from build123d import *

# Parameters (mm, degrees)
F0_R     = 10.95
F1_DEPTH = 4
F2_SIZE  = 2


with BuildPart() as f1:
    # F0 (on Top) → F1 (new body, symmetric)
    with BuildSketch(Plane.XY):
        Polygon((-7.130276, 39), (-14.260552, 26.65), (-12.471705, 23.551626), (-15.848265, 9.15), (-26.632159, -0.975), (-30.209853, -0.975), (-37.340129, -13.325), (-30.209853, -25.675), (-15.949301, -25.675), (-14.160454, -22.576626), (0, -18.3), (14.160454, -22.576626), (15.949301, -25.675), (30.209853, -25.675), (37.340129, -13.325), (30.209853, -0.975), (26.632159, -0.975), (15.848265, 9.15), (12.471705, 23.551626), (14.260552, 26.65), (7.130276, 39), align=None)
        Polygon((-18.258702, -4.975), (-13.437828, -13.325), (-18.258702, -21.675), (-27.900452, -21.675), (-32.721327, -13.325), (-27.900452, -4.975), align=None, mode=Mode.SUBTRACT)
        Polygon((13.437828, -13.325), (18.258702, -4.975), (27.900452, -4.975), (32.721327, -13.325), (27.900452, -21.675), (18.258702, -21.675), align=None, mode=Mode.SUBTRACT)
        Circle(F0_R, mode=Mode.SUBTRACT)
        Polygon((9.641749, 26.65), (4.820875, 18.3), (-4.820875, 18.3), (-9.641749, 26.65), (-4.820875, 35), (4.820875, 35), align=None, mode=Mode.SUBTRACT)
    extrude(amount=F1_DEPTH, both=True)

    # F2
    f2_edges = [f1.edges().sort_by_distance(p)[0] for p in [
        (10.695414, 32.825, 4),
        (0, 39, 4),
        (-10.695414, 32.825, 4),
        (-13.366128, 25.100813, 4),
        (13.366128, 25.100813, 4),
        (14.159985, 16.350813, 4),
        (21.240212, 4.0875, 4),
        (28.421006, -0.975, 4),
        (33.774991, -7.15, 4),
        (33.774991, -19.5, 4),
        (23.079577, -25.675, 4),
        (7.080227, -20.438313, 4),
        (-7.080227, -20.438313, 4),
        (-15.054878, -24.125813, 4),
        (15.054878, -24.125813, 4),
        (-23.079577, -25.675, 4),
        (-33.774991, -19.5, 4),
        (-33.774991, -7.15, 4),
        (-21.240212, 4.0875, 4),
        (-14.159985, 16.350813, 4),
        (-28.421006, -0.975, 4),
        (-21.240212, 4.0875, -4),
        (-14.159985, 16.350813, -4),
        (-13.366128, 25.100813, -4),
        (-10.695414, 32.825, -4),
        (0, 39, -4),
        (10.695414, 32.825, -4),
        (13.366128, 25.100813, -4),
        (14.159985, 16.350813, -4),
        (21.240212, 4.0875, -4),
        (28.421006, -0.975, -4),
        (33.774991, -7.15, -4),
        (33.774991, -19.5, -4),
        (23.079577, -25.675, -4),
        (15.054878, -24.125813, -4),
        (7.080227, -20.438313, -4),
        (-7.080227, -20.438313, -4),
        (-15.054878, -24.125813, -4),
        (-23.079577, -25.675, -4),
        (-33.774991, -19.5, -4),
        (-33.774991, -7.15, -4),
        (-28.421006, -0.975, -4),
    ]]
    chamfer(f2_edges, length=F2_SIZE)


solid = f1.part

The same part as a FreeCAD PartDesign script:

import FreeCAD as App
import Part
import Sketcher

V = App.Vector
Q = App.Units.Quantity


def edges_at(feature, points):
    """Names of the edges that pass closest to the given points."""
    edges = feature.Shape.Edges
    near = lambda p: min(range(len(edges)), key=lambda i: edges[i].distToShape(Part.Vertex(*p))[0])
    return sorted({f"Edge{near(p) + 1}" for p in points})


def add_polygon(sketch, points):
    """Adds a closed chain of lines whose ends are joined by coincident constraints."""
    first, n = sketch.GeometryCount, len(points)
    for a, b in zip(points, points[1:] + points[:1]):
        sketch.addGeometry(Part.LineSegment(App.Vector(*a, 0), App.Vector(*b, 0)), False)
    for i in range(n):
        sketch.addConstraint(Sketcher.Constraint("Coincident", first + i, 2, first + (i + 1) % n, 1))

doc = App.newDocument("Part")
params = doc.addObject("Spreadsheet::Sheet", "Params")
for row, (alias, value) in enumerate([
    ("sketch1_diameter", "21.9 mm"),
    ("pad1_length", "8 mm"),
    ("chamfer_size", "2 mm"),
], start=1):
    params.set(f"A{row}", alias)
    params.set(f"B{row}", "=" + value)
    params.setAlias(f"B{row}", alias)

body = doc.addObject("PartDesign::Body", "Body")

# Sketch on XY plane
sketch1 = body.newObject("Sketcher::SketchObject", "Sketch")
sketch1.AttachmentSupport = (doc.getObject("XY_Plane"), [""])
sketch1.MapMode = "FlatFace"
add_polygon(sketch1, [(-7.130276, 39), (-14.260552, 26.65), (-12.471705, 23.551626), (-15.848265, 9.15), (-26.632159, -0.975), (-30.209853, -0.975), (-37.340129, -13.325), (-30.209853, -25.675), (-15.949301, -25.675), (-14.160454, -22.576626), (0, -18.3), (14.160454, -22.576626), (15.949301, -25.675), (30.209853, -25.675), (37.340129, -13.325), (30.209853, -0.975), (26.632159, -0.975), (15.848265, 9.15), (12.471705, 23.551626), (14.260552, 26.65), (7.130276, 39)])  # lines 0-20
add_polygon(sketch1, [(-27.900452, -4.975), (-18.258702, -4.975), (-13.437828, -13.325), (-18.258702, -21.675), (-27.900452, -21.675), (-32.721327, -13.325)])  # lines 21-26
add_polygon(sketch1, [(18.258702, -21.675), (13.437828, -13.325), (18.258702, -4.975), (27.900452, -4.975), (32.721327, -13.325), (27.900452, -21.675)])  # lines 27-32
sketch1.addGeometry(Part.Circle(V(0, 0, 0), V(0, 0, 1), 10.95), False)  # 33
add_polygon(sketch1, [(4.820875, 35), (9.641749, 26.65), (4.820875, 18.3), (-4.820875, 18.3), (-9.641749, 26.65), (-4.820875, 35)])  # lines 34-39
sketch1.addConstraint(Sketcher.Constraint("Horizontal", 4))
sketch1.addConstraint(Sketcher.Constraint("Horizontal", 7))
sketch1.addConstraint(Sketcher.Constraint("Horizontal", 12))
sketch1.addConstraint(Sketcher.Constraint("Horizontal", 15))
sketch1.addConstraint(Sketcher.Constraint("Horizontal", 20))
sketch1.addConstraint(Sketcher.Constraint("Horizontal", 21))
sketch1.addConstraint(Sketcher.Constraint("Horizontal", 24))
sketch1.addConstraint(Sketcher.Constraint("Horizontal", 29))
sketch1.addConstraint(Sketcher.Constraint("Horizontal", 32))
sketch1.addConstraint(Sketcher.Constraint("Horizontal", 36))
sketch1.addConstraint(Sketcher.Constraint("Horizontal", 39))
sketch1.addConstraint(Sketcher.Constraint("Coincident", 33, 3, -1, 1))
sketch1.addConstraint(Sketcher.Constraint("Symmetric", 8, 2, 10, 2, -2))
sketch1.addConstraint(Sketcher.Constraint("Symmetric", 7, 2, 11, 2, -2))
sketch1.addConstraint(Sketcher.Constraint("Symmetric", 5, 2, 13, 2, -2))
sketch1.addConstraint(Sketcher.Constraint("Symmetric", 4, 2, 14, 2, -2))
sketch1.addConstraint(Sketcher.Constraint("Symmetric", 2, 2, 16, 2, -2))
sketch1.addConstraint(Sketcher.Constraint("Symmetric", 1, 2, 17, 2, -2))
sketch1.addConstraint(Sketcher.Constraint("Symmetric", 0, 2, 18, 2, -2))
sketch1.addConstraint(Sketcher.Constraint("Symmetric", 22, 2, 27, 2, -2))
sketch1.addConstraint(Sketcher.Constraint("Symmetric", 21, 2, 28, 2, -2))
sketch1.addConstraint(Sketcher.Constraint("Symmetric", 25, 2, 30, 2, -2))
sketch1.addConstraint(Sketcher.Constraint("Symmetric", 24, 2, 31, 2, -2))
sketch1.addConstraint(Sketcher.Constraint("Symmetric", 34, 2, 37, 2, -2))
sketch1.addConstraint(Sketcher.Constraint("PointOnObject", 9, 2, -2))
sketch1.addConstraint(Sketcher.Constraint("Parallel", 0, 5))
sketch1.addConstraint(Sketcher.Constraint("Parallel", 1, 6))
sketch1.addConstraint(Sketcher.Constraint("Parallel", 5, 8))
sketch1.addConstraint(Sketcher.Constraint("Parallel", 6, 11))
sketch1.addConstraint(Sketcher.Constraint("Parallel", 8, 13))
sketch1.addConstraint(Sketcher.Constraint("Parallel", 14, 19))
sketch1.addConstraint(Sketcher.Constraint("Parallel", 19, 22))
sketch1.addConstraint(Sketcher.Constraint("Parallel", 18, 23))
sketch1.addConstraint(Sketcher.Constraint("Parallel", 22, 25))
sketch1.addConstraint(Sketcher.Constraint("Parallel", 23, 26))
sketch1.addConstraint(Sketcher.Constraint("Parallel", 25, 27))
sketch1.addConstraint(Sketcher.Constraint("Parallel", 27, 30))
sketch1.addConstraint(Sketcher.Constraint("Parallel", 30, 34))
sketch1.addConstraint(Sketcher.Constraint("Parallel", 31, 35))
sketch1.addConstraint(Sketcher.Constraint("Parallel", 34, 37))
sketch1.addConstraint(Sketcher.Constraint("Parallel", 35, 38))
sketch1.addConstraint(Sketcher.Constraint("Horizontal", 13, 2, 22, 2))
sketch1.addConstraint(Sketcher.Constraint("Horizontal", 22, 2, 25, 2))
sketch1.addConstraint(Sketcher.Constraint("Horizontal", 18, 2, 34, 2))
sketch1.addConstraint(Sketcher.Constraint("Vertical", 4, 2, 6, 2))
sketch1.addConstraint(Sketcher.Constraint("Vertical", 21, 2, 23, 2))
sketch1.addConstraint(Sketcher.Constraint("Vertical", 36, 2, 38, 2))
sketch1.addConstraint(Sketcher.Constraint("Equal", 4, 15))
sketch1.addConstraint(Sketcher.Constraint("Equal", 12, 20))
sketch1.addConstraint(Sketcher.Constraint("Equal", 32, 36))
sketch1.addConstraint(Sketcher.Constraint("Equal", 2, 3))
sketch1.addConstraint(Sketcher.Constraint("Equal", 0, 5))
sketch1.addConstraint(Sketcher.Constraint("Equal", 1, 8))
sketch1.addConstraint(Sketcher.Constraint("Equal", 3, 9))
sketch1.addConstraint(Sketcher.Constraint("Equal", 31, 34))
sketch1.addConstraint(Sketcher.Constraint("Diameter", 33, Q("21.9 mm")))
sketch1.addConstraint(Sketcher.Constraint("Angle", 0, Q("-120.000001 deg")))
sketch1.addConstraint(Sketcher.Constraint("DistanceY", -1, 1, 19, 2, Q("39 mm")))
sketch1.addConstraint(Sketcher.Constraint("DistanceY", -1, 1, 38, 2, Q("35 mm")))
sketch1.addConstraint(Sketcher.Constraint("DistanceY", 9, 2, -1, 1, Q("18.3 mm")))
sketch1.addConstraint(Sketcher.Constraint("DistanceY", -1, 1, 35, 2, Q("18.3 mm")))
sketch1.addConstraint(Sketcher.Constraint("DistanceY", 2, 2, 0, 2, Q("17.5 mm")))
sketch1.addConstraint(Sketcher.Constraint("DistanceX", 24, 2, 8, 2, Q("13.739998 mm")))
sketch1.addConstraint(Sketcher.Constraint("DistanceY", 3, 2, -1, 1, Q("0.975 mm")))
sketch1.addConstraint(Sketcher.Constraint("DistanceX", 7, 1, 7, 2, Q("14.260552 mm")))
sketch1.addConstraint(Sketcher.Constraint("DistanceX", 21, 1, 21, 2, Q("9.64175 mm")))
sketch1.addConstraint(Sketcher.Constraint("DistanceX", 7, 2, -1, 1, Q("15.949301 mm")))
sketch1.addConstraint(Sketcher.Constraint("DistanceX", 21, 2, -1, 1, Q("18.258702 mm")))
sketch1.setExpression("Constraints[94]", "Params.sketch1_diameter")
pad1 = body.newObject("PartDesign::Pad", "Pad")
pad1.Profile = sketch1
pad1.setExpression("Length", "Params.pad1_length")
pad1.Midplane = True
doc.recompute()

chamfer = body.newObject("PartDesign::Chamfer", "Chamfer")
chamfer.Base = (pad1, edges_at(pad1, [
    (10.695, 32.825, 4),
    (0, 39, 4),
    (-10.695, 32.825, 4),
    (-13.366, 25.101, 4),
    (13.366, 25.101, 4),
    (14.16, 16.351, 4),
    (21.24, 4.088, 4),
    (28.421, -0.975, 4),
    (33.775, -7.15, 4),
    (33.775, -19.5, 4),
    (23.08, -25.675, 4),
    (7.08, -20.438, 4),
    (-7.08, -20.438, 4),
    (-15.055, -24.126, 4),
    (15.055, -24.126, 4),
    (-23.08, -25.675, 4),
    (-33.775, -19.5, 4),
    (-33.775, -7.15, 4),
    (-21.24, 4.088, 4),
    (-14.16, 16.351, 4),
    (-28.421, -0.975, 4),
    (-21.24, 4.088, -4),
    (-14.16, 16.351, -4),
    (-13.366, 25.101, -4),
    (-10.695, 32.825, -4),
    (0, 39, -4),
    (10.695, 32.825, -4),
    (13.366, 25.101, -4),
    (14.16, 16.351, -4),
    (21.24, 4.088, -4),
    (28.421, -0.975, -4),
    (33.775, -7.15, -4),
    (33.775, -19.5, -4),
    (23.08, -25.675, -4),
    (15.055, -24.126, -4),
    (7.08, -20.438, -4),
    (-7.08, -20.438, -4),
    (-15.055, -24.126, -4),
    (-23.08, -25.675, -4),
    (-33.775, -19.5, -4),
    (-33.775, -7.15, -4),
    (-28.421, -0.975, -4),
]))
chamfer.setExpression("Size", "Params.chamfer_size")

doc.recompute()
